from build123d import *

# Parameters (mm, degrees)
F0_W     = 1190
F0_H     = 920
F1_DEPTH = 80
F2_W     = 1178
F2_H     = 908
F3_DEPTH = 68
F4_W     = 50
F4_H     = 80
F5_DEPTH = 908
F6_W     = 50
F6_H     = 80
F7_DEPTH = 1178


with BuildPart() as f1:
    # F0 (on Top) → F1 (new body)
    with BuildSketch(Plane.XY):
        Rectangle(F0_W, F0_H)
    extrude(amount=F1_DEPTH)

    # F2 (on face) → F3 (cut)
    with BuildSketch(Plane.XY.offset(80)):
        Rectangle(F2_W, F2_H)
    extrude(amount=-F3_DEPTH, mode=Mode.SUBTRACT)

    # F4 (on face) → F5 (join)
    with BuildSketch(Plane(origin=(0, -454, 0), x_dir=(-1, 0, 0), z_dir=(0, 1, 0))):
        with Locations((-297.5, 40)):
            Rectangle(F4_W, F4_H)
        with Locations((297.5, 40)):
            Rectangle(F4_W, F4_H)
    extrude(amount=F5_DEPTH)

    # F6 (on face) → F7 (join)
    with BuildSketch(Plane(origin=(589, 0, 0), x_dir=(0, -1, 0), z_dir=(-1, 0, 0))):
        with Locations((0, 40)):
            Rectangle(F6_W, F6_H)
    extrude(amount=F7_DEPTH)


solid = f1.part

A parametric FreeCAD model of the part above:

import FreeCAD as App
import Part
import Sketcher
Q = App.Units.Quantity

doc = App.newDocument("Part")
body = doc.addObject("PartDesign::Body", "Body")

sketch1 = body.newObject("Sketcher::SketchObject", "Sketch")
sketch1.AttachmentSupport = (doc.getObject("XY_Plane"), [""])
sketch1.MapMode = "FlatFace"
sketch1.addGeometry(Part.LineSegment(App.Vector(-595, 460, 0), App.Vector(-595, -460, 0)), False)
sketch1.addGeometry(Part.LineSegment(App.Vector(-595, -460, 0), App.Vector(595, -460, 0)), False)
sketch1.addGeometry(Part.LineSegment(App.Vector(595, -460, 0), App.Vector(595, 460, 0)), False)
sketch1.addGeometry(Part.LineSegment(App.Vector(595, 460, 0), App.Vector(-595, 460, 0)), False)
sketch1.addConstraint(Sketcher.Constraint("Coincident", 0, 2, 1, 1))
sketch1.addConstraint(Sketcher.Constraint("Coincident", 1, 2, 2, 1))
sketch1.addConstraint(Sketcher.Constraint("Coincident", 2, 2, 3, 1))
sketch1.addConstraint(Sketcher.Constraint("Coincident", 3, 2, 0, 1))
sketch1.addConstraint(Sketcher.Constraint("Vertical", 0))
sketch1.addConstraint(Sketcher.Constraint("Horizontal", 1))
sketch1.addConstraint(Sketcher.Constraint("Vertical", 2))
sketch1.addConstraint(Sketcher.Constraint("Horizontal", 3))
sketch1.addConstraint(Sketcher.Constraint("Symmetric", 0, 2, 2, 2, -1, 1))
sketch1.addConstraint(Sketcher.Constraint("DistanceX", 1, 1, 1, 2, Q("1190 mm")))
sketch1.addConstraint(Sketcher.Constraint("DistanceY", 0, 2, 0, 1, Q("920 mm")))
pad1 = body.newObject("PartDesign::Pad", "Pad")
pad1.Profile = sketch1
pad1.Length = 80

sketch2 = body.newObject("Sketcher::SketchObject", "Sketch001")
sketch2.AttachmentSupport = (doc.getObject("XY_Plane"), [""])
sketch2.MapMode = "FlatFace"
sketch2.AttachmentOffset = App.Placement(App.Vector(0, 0, 80), App.Rotation())
sketch2.addGeometry(Part.LineSegment(App.Vector(-589, 454, 0), App.Vector(-589, -454, 0)), False)
sketch2.addGeometry(Part.LineSegment(App.Vector(-589, -454, 0), App.Vector(589, -454, 0)), False)
sketch2.addGeometry(Part.LineSegment(App.Vector(589, -454, 0), App.Vector(589, 454, 0)), False)
sketch2.addGeometry(Part.LineSegment(App.Vector(589, 454, 0), App.Vector(-589, 454, 0)), False)
sketch2.addConstraint(Sketcher.Constraint("Coincident", 0, 2, 1, 1))
sketch2.addConstraint(Sketcher.Constraint("Coincident", 1, 2, 2, 1))
sketch2.addConstraint(Sketcher.Constraint("Coincident", 2, 2, 3, 1))
sketch2.addConstraint(Sketcher.Constraint("Coincident", 3, 2, 0, 1))
sketch2.addConstraint(Sketcher.Constraint("Vertical", 0))
sketch2.addConstraint(Sketcher.Constraint("Horizontal", 1))
sketch2.addConstraint(Sketcher.Constraint("Vertical", 2))
sketch2.addConstraint(Sketcher.Constraint("Horizontal", 3))
sketch2.addConstraint(Sketcher.Constraint("Symmetric", 0, 2, 2, 2, -1, 1))
sketch2.addConstraint(Sketcher.Constraint("DistanceX", 1, 1, 1, 2, Q("1178 mm")))
sketch2.addConstraint(Sketcher.Constraint("DistanceY", 0, 2, 0, 1, Q("908 mm")))
pocket1 = body.newObject("PartDesign::Pocket", "Pocket")
pocket1.Profile = sketch2
pocket1.Length = 68

sketch3 = body.newObject("Sketcher::SketchObject", "Sketch002")
sketch3.AttachmentSupport = (doc.getObject("XZ_Plane"), [""])
sketch3.MapMode = "FlatFace"
sketch3.AttachmentOffset = App.Placement(App.Vector(0, 0, 454), App.Rotation())
sketch3.addGeometry(Part.LineSegment(App.Vector(322, 80, 0), App.Vector(322, 0, 0)), False)
sketch3.addGeometry(Part.LineSegment(App.Vector(322, 0, 0), App.Vector(272, 0, 0)), False)
sketch3.addGeometry(Part.LineSegment(App.Vector(272, 0, 0), App.Vector(272, 80, 0)), False)
sketch3.addGeometry(Part.LineSegment(App.Vector(272, 80, 0), App.Vector(322, 80, 0)), False)
sketch3.addGeometry(Part.LineSegment(App.Vector(-272, 80, 0), App.Vector(-272, 0, 0)), False)
sketch3.addGeometry(Part.LineSegment(App.Vector(-272, 0, 0), App.Vector(-322, 0, 0)), False)
sketch3.addGeometry(Part.LineSegment(App.Vector(-322, 0, 0), App.Vector(-322, 80, 0)), False)
sketch3.addGeometry(Part.LineSegment(App.Vector(-322, 80, 0), App.Vector(-272, 80, 0)), False)
sketch3.addConstraint(Sketcher.Constraint("Coincident", 0, 2, 1, 1))
sketch3.addConstraint(Sketcher.Constraint("Coincident", 1, 2, 2, 1))
sketch3.addConstraint(Sketcher.Constraint("Coincident", 2, 2, 3, 1))
sketch3.addConstraint(Sketcher.Constraint("Coincident", 3, 2, 0, 1))
sketch3.addConstraint(Sketcher.Constraint("Coincident", 4, 2, 5, 1))
sketch3.addConstraint(Sketcher.Constraint("Coincident", 5, 2, 6, 1))
sketch3.addConstraint(Sketcher.Constraint("Coincident", 6, 2, 7, 1))
sketch3.addConstraint(Sketcher.Constraint("Coincident", 7, 2, 4, 1))
sketch3.addConstraint(Sketcher.Constraint("Vertical", 0))
sketch3.addConstraint(Sketcher.Constraint("Horizontal", 1))
sketch3.addConstraint(Sketcher.Constraint("Vertical", 2))
sketch3.addConstraint(Sketcher.Constraint("Horizontal", 3))
sketch3.addConstraint(Sketcher.Constraint("Vertical", 4))
sketch3.addConstraint(Sketcher.Constraint("Horizontal", 5))
sketch3.addConstraint(Sketcher.Constraint("Vertical", 6))
sketch3.addConstraint(Sketcher.Constraint("Horizontal", 7))
sketch3.addConstraint(Sketcher.Constraint("Symmetric", 1, 2, 4, 2, -1, 1))
sketch3.addConstraint(Sketcher.Constraint("Symmetric", 0, 2, 5, 2, -2))
sketch3.addConstraint(Sketcher.Constraint("Horizontal", 3, 2, 6, 2))
sketch3.addConstraint(Sketcher.Constraint("DistanceX", 1, 2, 1, 1, Q("50 mm")))
sketch3.addConstraint(Sketcher.Constraint("DistanceY", 0, 2, 0, 1, Q("80 mm")))
sketch3.addConstraint(Sketcher.Constraint("DistanceX", 4, 2, 1, 2, Q("545 mm")))
pad2 = body.newObject("PartDesign::Pad", "Pad001")
pad2.Profile = sketch3
pad2.Length = 908
pad2.Reversed = True

sketch4 = body.newObject("Sketcher::SketchObject", "Sketch003")
sketch4.AttachmentSupport = (doc.getObject("YZ_Plane"), [""])
sketch4.MapMode = "FlatFace"
sketch4.AttachmentOffset = App.Placement(App.Vector(0, 0, 589), App.Rotation())
sketch4.addGeometry(Part.LineSegment(App.Vector(25, 80, 0), App.Vector(25, 0, 0)), False)
sketch4.addGeometry(Part.LineSegment(App.Vector(25, 0, 0), App.Vector(-25, 0, 0)), False)
sketch4.addGeometry(Part.LineSegment(App.Vector(-25, 0, 0), App.Vector(-25, 80, 0)), False)
sketch4.addGeometry(Part.LineSegment(App.Vector(-25, 80, 0), App.Vector(25, 80, 0)), False)
sketch4.addConstraint(Sketcher.Constraint("Coincident", 0, 2, 1, 1))
sketch4.addConstraint(Sketcher.Constraint("Coincident", 1, 2, 2, 1))
sketch4.addConstraint(Sketcher.Constraint("Coincident", 2, 2, 3, 1))
sketch4.addConstraint(Sketcher.Constraint("Coincident", 3, 2, 0, 1))
sketch4.addConstraint(Sketcher.Constraint("Vertical", 0))
sketch4.addConstraint(Sketcher.Constraint("Horizontal", 1))
sketch4.addConstraint(Sketcher.Constraint("Vertical", 2))
sketch4.addConstraint(Sketcher.Constraint("Horizontal", 3))
sketch4.addConstraint(Sketcher.Constraint("Symmetric", 0, 2, 1, 2, -1, 1))
sketch4.addConstraint(Sketcher.Constraint("DistanceX", 1, 2, 1, 1, Q("50 mm")))
sketch4.addConstraint(Sketcher.Constraint("DistanceY", 0, 2, 0, 1, Q("80 mm")))
pad3 = body.newObject("PartDesign::Pad", "Pad002")
pad3.Profile = sketch4
pad3.Length = 1178
pad3.Reversed = True

doc.recompute()
